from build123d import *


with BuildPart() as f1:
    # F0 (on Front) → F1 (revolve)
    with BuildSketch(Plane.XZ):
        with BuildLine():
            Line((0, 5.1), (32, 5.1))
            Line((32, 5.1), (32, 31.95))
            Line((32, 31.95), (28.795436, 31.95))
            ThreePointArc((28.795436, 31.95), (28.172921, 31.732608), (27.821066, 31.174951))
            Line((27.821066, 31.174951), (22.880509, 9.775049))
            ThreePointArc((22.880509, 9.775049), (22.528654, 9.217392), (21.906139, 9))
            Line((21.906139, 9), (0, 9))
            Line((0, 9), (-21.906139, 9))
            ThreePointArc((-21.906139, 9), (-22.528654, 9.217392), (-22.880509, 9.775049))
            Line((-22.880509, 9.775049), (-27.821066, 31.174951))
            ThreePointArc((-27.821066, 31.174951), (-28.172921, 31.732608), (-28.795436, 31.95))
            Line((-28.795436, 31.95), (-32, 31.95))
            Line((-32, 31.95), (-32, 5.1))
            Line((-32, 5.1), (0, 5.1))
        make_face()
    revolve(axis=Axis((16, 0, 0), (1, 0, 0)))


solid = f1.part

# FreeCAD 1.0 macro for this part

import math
import FreeCAD as App
import Part
import Sketcher
from FreeCAD import Vector
Q = App.Units.Quantity

doc = App.newDocument("Part")
body = doc.addObject("PartDesign::Body", "Body")

# Sketch on XZ plane
sketch1 = body.newObject("Sketcher::SketchObject", "Sketch")
sketch1.AttachmentSupport = (doc.getObject("XZ_Plane"), [""])
sketch1.MapMode = "FlatFace"
sketch1.addGeometry([
    Part.LineSegment(Vector(32, 5.1, 0), Vector(32, 31.9, 0)),  # 0
    Part.LineSegment(Vector(32, 31.9, 0), Vector(28.8, 31.9, 0)),  # 1
    Part.ArcOfCircle(Part.Circle(Vector(28.8, 31, 0), Vector(0, 0, 1), 1), math.radians(90), math.radians(167)),  # 2
    Part.LineSegment(Vector(27.8, 31.2, 0), Vector(22.9, 9.8, 0)),  # 3
    Part.ArcOfCircle(Part.Circle(Vector(21.9, 10, 0), Vector(0, 0, 1), 1), math.radians(-90), math.radians(-13)),  # 4
    Part.LineSegment(Vector(21.9, 9, 0), Vector(-21.9, 9, 0)),  # 5
    Part.ArcOfCircle(Part.Circle(Vector(-21.9, 10, 0), Vector(0, 0, 1), 1), math.radians(-167), math.radians(-90)),  # 6
    Part.LineSegment(Vector(-22.9, 9.8, 0), Vector(-27.8, 31.2, 0)),  # 7
    Part.ArcOfCircle(Part.Circle(Vector(-28.8, 31, 0), Vector(0, 0, 1), 1), math.radians(13), math.radians(90)),  # 8
    Part.LineSegment(Vector(-28.8, 31.9, 0), Vector(-32, 31.9, 0)),  # 9
    Part.LineSegment(Vector(-32, 31.9, 0), Vector(-32, 5.1, 0)),  # 10
    Part.LineSegment(Vector(-32, 5.1, 0), Vector(32, 5.1, 0)),  # 11
], False)
sketch1.addConstraint([
    Sketcher.Constraint("Coincident", 0, 2, 1, 1),
    Sketcher.Constraint("Tangent", 1, 2, 2, 1),
    Sketcher.Constraint("Tangent", 2, 2, 3, 1),
    Sketcher.Constraint("Tangent", 3, 2, 4, 2),
    Sketcher.Constraint("Tangent", 4, 1, 5, 1),
    Sketcher.Constraint("Tangent", 5, 2, 6, 2),
    Sketcher.Constraint("Tangent", 6, 1, 7, 1),
    Sketcher.Constraint("Tangent", 7, 2, 8, 1),
    Sketcher.Constraint("Tangent", 8, 2, 9, 1),
    Sketcher.Constraint("Coincident", 9, 2, 10, 1),
    Sketcher.Constraint("Coincident", 10, 2, 11, 1),
    Sketcher.Constraint("Coincident", 11, 2, 0, 1),
    Sketcher.Constraint("Vertical", 0),
    Sketcher.Constraint("Horizontal", 1),
    Sketcher.Constraint("Horizontal", 5),
    Sketcher.Constraint("Horizontal", 9),
    Sketcher.Constraint("Vertical", 10),
    Sketcher.Constraint("Horizontal", 11),
    Sketcher.Constraint("Equal", 2, 4),
    Sketcher.Constraint("Equal", 4, 6),
    Sketcher.Constraint("Equal", 6, 8),
    Sketcher.Constraint("Symmetric", 2, 3, 8, 3, -2),
    Sketcher.Constraint("Horizontal", 3, 2, 6, 1),
    Sketcher.Constraint("Equal", 1, 9),
    Sketcher.Constraint("Radius", 2, Q("0.999999 mm")),
    Sketcher.Constraint("DistanceX", 11, 1, 11, 2, Q("64 mm")),
    Sketcher.Constraint("Angle", 3, Q("-103.000001 deg")),
    Sketcher.Constraint("DistanceY", -1, 1, 4, 3, Q("9.999999 mm")),
    Sketcher.Constraint("DistanceY", 0, 1, 0, 2, Q("26.85 mm")),
    Sketcher.Constraint("DistanceY", -1, 1, 10, 2, Q("5.1 mm")),
    Sketcher.Constraint("DistanceX", 1, 2, 1, 1, Q("3.204564 mm")),
])
revolution = body.newObject("PartDesign::Revolution", "Revolution")
revolution.Profile = sketch1
revolution.ReferenceAxis = (sketch1, ["H_Axis"])
revolution.Angle = 360

doc.recompute()
